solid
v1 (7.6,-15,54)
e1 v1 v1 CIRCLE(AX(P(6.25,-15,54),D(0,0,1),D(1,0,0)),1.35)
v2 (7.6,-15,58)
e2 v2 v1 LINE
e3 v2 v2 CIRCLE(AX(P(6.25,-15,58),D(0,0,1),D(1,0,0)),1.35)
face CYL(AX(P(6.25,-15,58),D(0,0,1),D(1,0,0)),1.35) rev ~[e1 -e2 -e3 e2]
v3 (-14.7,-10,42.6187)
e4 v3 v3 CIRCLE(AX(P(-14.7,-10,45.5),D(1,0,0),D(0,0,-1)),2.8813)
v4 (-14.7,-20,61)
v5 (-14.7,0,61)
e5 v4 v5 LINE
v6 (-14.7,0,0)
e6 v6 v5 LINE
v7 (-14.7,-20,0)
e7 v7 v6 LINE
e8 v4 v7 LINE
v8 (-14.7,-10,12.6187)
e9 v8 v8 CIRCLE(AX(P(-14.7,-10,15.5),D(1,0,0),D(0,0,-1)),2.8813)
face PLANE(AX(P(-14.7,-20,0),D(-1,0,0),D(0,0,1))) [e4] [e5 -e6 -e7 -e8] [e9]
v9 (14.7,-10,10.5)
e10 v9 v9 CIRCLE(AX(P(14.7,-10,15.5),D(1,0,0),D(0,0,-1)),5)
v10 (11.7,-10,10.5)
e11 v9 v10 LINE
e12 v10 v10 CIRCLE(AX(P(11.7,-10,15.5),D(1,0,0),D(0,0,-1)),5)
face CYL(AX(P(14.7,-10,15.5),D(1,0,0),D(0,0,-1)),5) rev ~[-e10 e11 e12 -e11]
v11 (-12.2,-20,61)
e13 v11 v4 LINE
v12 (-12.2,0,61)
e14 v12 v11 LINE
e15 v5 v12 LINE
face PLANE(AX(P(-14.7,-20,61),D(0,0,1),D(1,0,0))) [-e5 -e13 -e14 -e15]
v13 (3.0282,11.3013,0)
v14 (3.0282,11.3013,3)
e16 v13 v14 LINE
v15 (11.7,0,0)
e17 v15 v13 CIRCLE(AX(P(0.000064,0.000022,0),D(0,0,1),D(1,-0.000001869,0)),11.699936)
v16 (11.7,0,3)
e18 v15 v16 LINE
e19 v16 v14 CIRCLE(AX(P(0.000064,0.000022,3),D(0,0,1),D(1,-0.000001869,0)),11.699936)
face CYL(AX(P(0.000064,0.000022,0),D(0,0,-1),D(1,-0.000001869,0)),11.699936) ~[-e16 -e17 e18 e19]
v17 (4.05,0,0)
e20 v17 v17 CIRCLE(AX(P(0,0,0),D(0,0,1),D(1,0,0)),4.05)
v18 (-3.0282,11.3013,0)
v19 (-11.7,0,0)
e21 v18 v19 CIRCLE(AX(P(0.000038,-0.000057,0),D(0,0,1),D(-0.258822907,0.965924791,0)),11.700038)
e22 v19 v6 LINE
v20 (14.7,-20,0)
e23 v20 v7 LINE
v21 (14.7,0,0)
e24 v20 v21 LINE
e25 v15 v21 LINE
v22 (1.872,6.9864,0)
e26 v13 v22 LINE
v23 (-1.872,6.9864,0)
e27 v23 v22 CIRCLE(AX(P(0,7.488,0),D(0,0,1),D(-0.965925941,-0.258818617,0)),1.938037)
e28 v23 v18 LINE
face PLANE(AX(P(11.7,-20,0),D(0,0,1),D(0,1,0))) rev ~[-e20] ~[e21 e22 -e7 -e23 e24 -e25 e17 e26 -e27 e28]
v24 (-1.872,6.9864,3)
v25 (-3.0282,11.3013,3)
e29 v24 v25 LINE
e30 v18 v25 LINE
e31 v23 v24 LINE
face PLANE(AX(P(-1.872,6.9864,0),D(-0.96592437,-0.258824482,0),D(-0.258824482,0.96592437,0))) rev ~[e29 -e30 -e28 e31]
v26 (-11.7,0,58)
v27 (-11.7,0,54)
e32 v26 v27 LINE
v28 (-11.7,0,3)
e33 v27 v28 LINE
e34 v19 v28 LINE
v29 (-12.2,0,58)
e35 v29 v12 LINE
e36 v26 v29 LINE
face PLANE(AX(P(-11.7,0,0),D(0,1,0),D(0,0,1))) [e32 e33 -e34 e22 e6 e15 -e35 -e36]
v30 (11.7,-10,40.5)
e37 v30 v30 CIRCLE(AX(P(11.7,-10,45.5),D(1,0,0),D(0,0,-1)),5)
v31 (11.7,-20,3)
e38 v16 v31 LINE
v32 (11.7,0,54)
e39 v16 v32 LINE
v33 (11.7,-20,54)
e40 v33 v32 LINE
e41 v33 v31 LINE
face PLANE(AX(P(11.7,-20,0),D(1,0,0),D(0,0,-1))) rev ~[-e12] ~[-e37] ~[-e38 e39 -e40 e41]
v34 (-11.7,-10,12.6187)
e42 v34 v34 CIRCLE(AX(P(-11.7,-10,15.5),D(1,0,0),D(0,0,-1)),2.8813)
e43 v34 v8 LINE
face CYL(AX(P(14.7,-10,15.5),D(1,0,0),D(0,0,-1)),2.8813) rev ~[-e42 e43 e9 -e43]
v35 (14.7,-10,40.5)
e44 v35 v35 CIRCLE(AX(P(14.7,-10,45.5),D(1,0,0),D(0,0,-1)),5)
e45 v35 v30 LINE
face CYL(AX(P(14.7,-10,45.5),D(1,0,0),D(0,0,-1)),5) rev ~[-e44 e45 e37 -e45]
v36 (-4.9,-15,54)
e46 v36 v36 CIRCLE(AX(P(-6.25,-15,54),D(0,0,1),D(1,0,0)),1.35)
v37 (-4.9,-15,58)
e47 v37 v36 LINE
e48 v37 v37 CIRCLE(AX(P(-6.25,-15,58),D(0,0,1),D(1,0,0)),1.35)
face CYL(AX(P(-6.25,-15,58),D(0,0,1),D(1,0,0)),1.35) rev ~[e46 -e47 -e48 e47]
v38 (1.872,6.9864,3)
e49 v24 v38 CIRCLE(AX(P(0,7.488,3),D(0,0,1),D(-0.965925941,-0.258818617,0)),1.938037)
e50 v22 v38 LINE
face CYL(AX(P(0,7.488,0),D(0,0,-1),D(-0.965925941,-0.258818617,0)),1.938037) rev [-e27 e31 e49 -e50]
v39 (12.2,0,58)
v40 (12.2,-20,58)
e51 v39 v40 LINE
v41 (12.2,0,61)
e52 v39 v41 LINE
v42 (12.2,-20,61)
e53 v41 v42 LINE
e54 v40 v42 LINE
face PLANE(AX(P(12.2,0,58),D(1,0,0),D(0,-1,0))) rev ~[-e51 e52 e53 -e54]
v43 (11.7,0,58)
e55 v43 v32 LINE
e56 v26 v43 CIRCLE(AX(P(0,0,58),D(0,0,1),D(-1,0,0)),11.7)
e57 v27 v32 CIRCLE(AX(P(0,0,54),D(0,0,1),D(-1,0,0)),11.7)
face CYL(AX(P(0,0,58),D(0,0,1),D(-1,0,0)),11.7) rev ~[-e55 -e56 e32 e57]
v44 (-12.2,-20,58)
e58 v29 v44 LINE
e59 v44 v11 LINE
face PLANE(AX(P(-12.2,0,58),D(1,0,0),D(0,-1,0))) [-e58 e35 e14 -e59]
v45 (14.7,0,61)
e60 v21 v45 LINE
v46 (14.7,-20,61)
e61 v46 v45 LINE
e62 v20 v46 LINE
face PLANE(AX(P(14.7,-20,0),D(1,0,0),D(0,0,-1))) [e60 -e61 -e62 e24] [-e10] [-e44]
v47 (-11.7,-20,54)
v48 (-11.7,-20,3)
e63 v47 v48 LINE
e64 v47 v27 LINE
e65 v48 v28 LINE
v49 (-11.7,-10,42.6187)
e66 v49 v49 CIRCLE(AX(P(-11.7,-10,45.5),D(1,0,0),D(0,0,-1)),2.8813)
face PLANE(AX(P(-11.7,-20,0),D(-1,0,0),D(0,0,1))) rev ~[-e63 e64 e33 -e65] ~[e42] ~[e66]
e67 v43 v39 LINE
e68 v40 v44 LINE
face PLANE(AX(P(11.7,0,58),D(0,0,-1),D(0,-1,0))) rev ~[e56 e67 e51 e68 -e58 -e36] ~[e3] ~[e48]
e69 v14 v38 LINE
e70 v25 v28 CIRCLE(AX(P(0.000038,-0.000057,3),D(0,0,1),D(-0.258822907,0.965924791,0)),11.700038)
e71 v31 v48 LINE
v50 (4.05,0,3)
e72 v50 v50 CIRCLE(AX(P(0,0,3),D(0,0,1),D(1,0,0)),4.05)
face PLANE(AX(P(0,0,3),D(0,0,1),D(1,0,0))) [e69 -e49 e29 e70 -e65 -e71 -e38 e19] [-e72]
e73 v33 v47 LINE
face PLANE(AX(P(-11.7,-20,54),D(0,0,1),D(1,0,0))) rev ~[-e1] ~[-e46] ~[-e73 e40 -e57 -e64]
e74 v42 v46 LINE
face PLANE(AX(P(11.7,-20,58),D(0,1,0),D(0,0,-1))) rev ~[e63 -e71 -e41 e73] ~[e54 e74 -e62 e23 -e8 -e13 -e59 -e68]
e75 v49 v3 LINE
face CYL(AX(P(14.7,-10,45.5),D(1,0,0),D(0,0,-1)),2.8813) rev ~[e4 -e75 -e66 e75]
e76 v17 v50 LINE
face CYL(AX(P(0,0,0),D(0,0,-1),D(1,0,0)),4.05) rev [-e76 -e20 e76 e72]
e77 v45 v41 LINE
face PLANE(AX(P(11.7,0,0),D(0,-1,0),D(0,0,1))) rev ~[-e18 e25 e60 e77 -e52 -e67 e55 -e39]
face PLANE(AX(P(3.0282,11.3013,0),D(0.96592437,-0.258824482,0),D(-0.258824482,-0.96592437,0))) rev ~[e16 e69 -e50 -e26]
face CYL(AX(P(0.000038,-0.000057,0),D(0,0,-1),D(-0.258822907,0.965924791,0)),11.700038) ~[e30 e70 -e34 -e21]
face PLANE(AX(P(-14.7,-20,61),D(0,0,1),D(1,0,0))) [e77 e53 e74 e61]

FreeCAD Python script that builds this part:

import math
import FreeCAD as App
import Part
import Sketcher
Q = App.Units.Quantity

doc = App.newDocument("Part")
body = doc.addObject("PartDesign::Body", "Body")

# Sketch on XY plane
sketch1 = body.newObject("Sketcher::SketchObject", "Sketch")
sketch1.AttachmentSupport = (doc.getObject("XY_Plane"), [""])
sketch1.MapMode = "FlatFace"
sketch1.addGeometry(Part.LineSegment(App.Vector(11.7, -20, 0), App.Vector(11.7, 0, 0)), False)
sketch1.addGeometry(Part.ArcOfCircle(Part.Circle(App.Vector(0, 0, 0), App.Vector(0, 0, 1), 11.7), math.radians(0), math.radians(75)), False)
sketch1.addGeometry(Part.LineSegment(App.Vector(3, 11.3, 0), App.Vector(1.9, 7, 0)), False)
sketch1.addGeometry(Part.ArcOfCircle(Part.Circle(App.Vector(0, 7.5, 0), App.Vector(0, 0, 1), 1.9), math.radians(-165), math.radians(-15)), False)
sketch1.addGeometry(Part.LineSegment(App.Vector(-1.9, 7, 0), App.Vector(-3, 11.3, 0)), False)
sketch1.addGeometry(Part.ArcOfCircle(Part.Circle(App.Vector(0, 0, 0), App.Vector(0, 0, 1), 11.7), math.radians(105), math.radians(180)), False)
sketch1.addGeometry(Part.LineSegment(App.Vector(-11.7, 0, 0), App.Vector(-11.7, -20, 0)), False)
sketch1.addGeometry(Part.LineSegment(App.Vector(-11.7, -20, 0), App.Vector(11.7, -20, 0)), False)
sketch1.addGeometry(Part.Circle(App.Vector(0, 0, 0), App.Vector(0, 0, 1), 4), False)
sketch1.addConstraint(Sketcher.Constraint("Tangent", 0, 2, 1, 1))
sketch1.addConstraint(Sketcher.Constraint("Coincident", 1, 2, 2, 1))
sketch1.addConstraint(Sketcher.Constraint("Tangent", 2, 2, 3, 2))
sketch1.addConstraint(Sketcher.Constraint("Tangent", 3, 1, 4, 1))
sketch1.addConstraint(Sketcher.Constraint("Coincident", 4, 2, 5, 1))
sketch1.addConstraint(Sketcher.Constraint("Tangent", 5, 2, 6, 1))
sketch1.addConstraint(Sketcher.Constraint("Coincident", 6, 2, 7, 1))
sketch1.addConstraint(Sketcher.Constraint("Coincident", 7, 2, 0, 1))
sketch1.addConstraint(Sketcher.Constraint("Vertical", 0))
sketch1.addConstraint(Sketcher.Constraint("Vertical", 6))
sketch1.addConstraint(Sketcher.Constraint("Horizontal", 7))
sketch1.addConstraint(Sketcher.Constraint("Coincident", 1, 3, -1, 1))
sketch1.addConstraint(Sketcher.Constraint("Coincident", 5, 3, -1, 1))
sketch1.addConstraint(Sketcher.Constraint("Coincident", 8, 3, -1, 1))
sketch1.addConstraint(Sketcher.Constraint("Equal", 1, 5))
sketch1.addConstraint(Sketcher.Constraint("Symmetric", 2, 2, 3, 1, -2))
sketch1.addConstraint(Sketcher.Constraint("Diameter", 8, 8.1))
sketch1.addConstraint(Sketcher.Constraint("Radius", 1, 11.7))
sketch1.addConstraint(Sketcher.Constraint("DistanceY", 0, 1, 0, 2, 20.0))
sketch1.addConstraint(Sketcher.Constraint("Angle", 2, Q("-105.0003 deg")))
sketch1.addConstraint(Sketcher.Constraint("Radius", 3, 1.938))
sketch1.addConstraint(Sketcher.Constraint("Distance", 2, 4.467))
pad1 = body.newObject("PartDesign::Pad", "Pad")
pad1.Profile = sketch1
pad1.Length = 3

# Sketch on YZ plane
sketch2 = body.newObject("Sketcher::SketchObject", "Sketch001")
sketch2.AttachmentSupport = (doc.getObject("YZ_Plane"), [""])
sketch2.MapMode = "FlatFace"
sketch2.AttachmentOffset = App.Placement(App.Vector(0, 0, -11.7), App.Rotation())
sketch2.addGeometry(Part.LineSegment(App.Vector(0, 0, 0), App.Vector(-20, 0, 0)), False)
sketch2.addGeometry(Part.LineSegment(App.Vector(-20, 0, 0), App.Vector(-20, 58, 0)), False)
sketch2.addGeometry(Part.LineSegment(App.Vector(-20, 58, 0), App.Vector(0, 58, 0)), False)
sketch2.addGeometry(Part.LineSegment(App.Vector(0, 58, 0), App.Vector(0, 0, 0)), False)
sketch2.addConstraint(Sketcher.Constraint("Coincident", 0, 2, 1, 1))
sketch2.addConstraint(Sketcher.Constraint("Coincident", 1, 2, 2, 1))
sketch2.addConstraint(Sketcher.Constraint("Coincident", 2, 2, 3, 1))
sketch2.addConstraint(Sketcher.Constraint("Coincident", 3, 2, 0, 1))
sketch2.addConstraint(Sketcher.Constraint("Horizontal", 0))
sketch2.addConstraint(Sketcher.Constraint("Vertical", 1))
sketch2.addConstraint(Sketcher.Constraint("Horizontal", 2))
sketch2.addConstraint(Sketcher.Constraint("Vertical", 3))
sketch2.addConstraint(Sketcher.Constraint("Coincident", 3, 2, -1, 1))
sketch2.addConstraint(Sketcher.Constraint("DistanceX", 0, 2, 0, 1, 20.0))
sketch2.addConstraint(Sketcher.Constraint("DistanceY", 1, 1, 1, 2, 58.0))
pad2 = body.newObject("PartDesign::Pad", "Pad001")
pad2.Profile = sketch2
pad2.Length = 3
pad2.Reversed = True

# Sketch on XY plane
sketch3 = body.newObject("Sketcher::SketchObject", "Sketch002")
sketch3.AttachmentSupport = (doc.getObject("XY_Plane"), [""])
sketch3.MapMode = "FlatFace"
sketch3.AttachmentOffset = App.Placement(App.Vector(0, 0, 58), App.Rotation())
sketch3.addGeometry(Part.ArcOfCircle(Part.Circle(App.Vector(0, 0, 0), App.Vector(0, 0, 1), 12), math.radians(180), math.radians(360)), False)
sketch3.addGeometry(Part.LineSegment(App.Vector(-12, 0, 0), App.Vector(-12, -20, 0)), False)
sketch3.addGeometry(Part.LineSegment(App.Vector(-12, -20, 0), App.Vector(12, -20, 0)), False)
sketch3.addGeometry(Part.LineSegment(App.Vector(12, -20, 0), App.Vector(12, 0, 0)), False)
sketch3.addConstraint(Sketcher.Constraint("Tangent", 0, 1, 1, 1))
sketch3.addConstraint(Sketcher.Constraint("Coincident", 1, 2, 2, 1))
sketch3.addConstraint(Sketcher.Constraint("Coincident", 2, 2, 3, 1))
sketch3.addConstraint(Sketcher.Constraint("Tangent", 3, 2, 0, 2))
sketch3.addConstraint(Sketcher.Constraint("Vertical", 1))
sketch3.addConstraint(Sketcher.Constraint("Horizontal", 2))
sketch3.addConstraint(Sketcher.Constraint("Vertical", 3))
sketch3.addConstraint(Sketcher.Constraint("Coincident", 0, 3, -1, 1))
sketch3.addConstraint(Sketcher.Constraint("Radius", 0, 11.7))
sketch3.addConstraint(Sketcher.Constraint("DistanceY", 1, 2, 1, 1, 20.0))
pad3 = body.newObject("PartDesign::Pad", "Pad002")
pad3.Profile = sketch3
pad3.Length = 4
pad3.Reversed = True

# Sketch on XY plane
sketch4 = body.newObject("Sketcher::SketchObject", "Sketch003")
sketch4.AttachmentSupport = (doc.getObject("XY_Plane"), [""])
sketch4.MapMode = "FlatFace"
sketch4.AttachmentOffset = App.Placement(App.Vector(0, 0, 58), App.Rotation())
sketch4.addGeometry(Part.Circle(App.Vector(-6.2, -15, 0), App.Vector(0, 0, 1), 1.4), False)
sketch4.addGeometry(Part.Circle(App.Vector(6.2, -15, 0), App.Vector(0, 0, 1), 1.4), False)
sketch4.addConstraint(Sketcher.Constraint("Equal", 0, 1))
sketch4.addConstraint(Sketcher.Constraint("Symmetric", 0, 3, 1, 3, -2))
sketch4.addConstraint(Sketcher.Constraint("Diameter", 0, 2.7))
sketch4.addConstraint(Sketcher.Constraint("DistanceY", 0, 3, -1, 1, 15.0))
sketch4.addConstraint(Sketcher.Constraint("DistanceX", 0, 3, 1, 3, 12.5))
pocket1 = body.newObject("PartDesign::Pocket", "Pocket")
pocket1.Profile = sketch4
pocket1.Length = 4

# Sketch on YZ plane
sketch5 = body.newObject("Sketcher::SketchObject", "Sketch004")
sketch5.AttachmentSupport = (doc.getObject("YZ_Plane"), [""])
sketch5.MapMode = "FlatFace"
sketch5.AttachmentOffset = App.Placement(App.Vector(0, 0, 11.7), App.Rotation())
sketch5.addGeometry(Part.LineSegment(App.Vector(-20, 0, 0), App.Vector(0, 0, 0)), False)
sketch5.addGeometry(Part.LineSegment(App.Vector(0, 0, 0), App.Vector(0, 58, 0)), False)
sketch5.addGeometry(Part.LineSegment(App.Vector(0, 58, 0), App.Vector(-20, 58, 0)), False)
sketch5.addGeometry(Part.LineSegment(App.Vector(-20, 58, 0), App.Vector(-20, 0, 0)), False)
sketch5.addConstraint(Sketcher.Constraint("Coincident", 0, 2, 1, 1))
sketch5.addConstraint(Sketcher.Constraint("Coincident", 1, 2, 2, 1))
sketch5.addConstraint(Sketcher.Constraint("Coincident", 2, 2, 3, 1))
sketch5.addConstraint(Sketcher.Constraint("Coincident", 3, 2, 0, 1))
sketch5.addConstraint(Sketcher.Constraint("Horizontal", 0))
sketch5.addConstraint(Sketcher.Constraint("Vertical", 1))
sketch5.addConstraint(Sketcher.Constraint("Horizontal", 2))
sketch5.addConstraint(Sketcher.Constraint("Vertical", 3))
sketch5.addConstraint(Sketcher.Constraint("Coincident", 0, 2, -1, 1))
sketch5.addConstraint(Sketcher.Constraint("DistanceX", 0, 1, 0, 2, 20.0))
sketch5.addConstraint(Sketcher.Constraint("DistanceY", 1, 1, 1, 2, 58.0))
pad4 = body.newObject("PartDesign::Pad", "Pad003")
pad4.Profile = sketch5
pad4.Length = 3

# Sketch on XY plane
sketch6 = body.newObject("Sketcher::SketchObject", "Sketch005")
sketch6.AttachmentSupport = (doc.getObject("XY_Plane"), [""])
sketch6.MapMode = "FlatFace"
sketch6.AttachmentOffset = App.Placement(App.Vector(0, 0, 58), App.Rotation())
sketch6.addGeometry(Part.LineSegment(App.Vector(-12.2, 0, 0), App.Vector(-14.7, 0, 0)), False)
sketch6.addGeometry(Part.LineSegment(App.Vector(-14.7, 0, 0), App.Vector(-14.7, -20, 0)), False)
sketch6.addGeometry(Part.LineSegment(App.Vector(-14.7, -20, 0), App.Vector(-12.2, -20, 0)), False)
sketch6.addGeometry(Part.LineSegment(App.Vector(-12.2, -20, 0), App.Vector(-12.2, 0, 0)), False)
sketch6.addGeometry(Part.LineSegment(App.Vector(14.7, -20, 0), App.Vector(14.7, 0, 0)), False)
sketch6.addGeometry(Part.LineSegment(App.Vector(14.7, 0, 0), App.Vector(12.2, 0, 0)), False)
sketch6.addGeometry(Part.LineSegment(App.Vector(12.2, 0, 0), App.Vector(12.2, -20, 0)), False)
sketch6.addGeometry(Part.LineSegment(App.Vector(12.2, -20, 0), App.Vector(14.7, -20, 0)), False)
sketch6.addConstraint(Sketcher.Constraint("Coincident", 0, 2, 1, 1))
sketch6.addConstraint(Sketcher.Constraint("Coincident", 1, 2, 2, 1))
sketch6.addConstraint(Sketcher.Constraint("Coincident", 2, 2, 3, 1))
sketch6.addConstraint(Sketcher.Constraint("Coincident", 3, 2, 0, 1))
sketch6.addConstraint(Sketcher.Constraint("Coincident", 4, 2, 5, 1))
sketch6.addConstraint(Sketcher.Constraint("Coincident", 5, 2, 6, 1))
sketch6.addConstraint(Sketcher.Constraint("Coincident", 6, 2, 7, 1))
sketch6.addConstraint(Sketcher.Constraint("Coincident", 7, 2, 4, 1))
sketch6.addConstraint(Sketcher.Constraint("Horizontal", 0))
sketch6.addConstraint(Sketcher.Constraint("Vertical", 1))
sketch6.addConstraint(Sketcher.Constraint("Horizontal", 2))
sketch6.addConstraint(Sketcher.Constraint("Vertical", 3))
sketch6.addConstraint(Sketcher.Constraint("Vertical", 4))
sketch6.addConstraint(Sketcher.Constraint("Horizontal", 5))
sketch6.addConstraint(Sketcher.Constraint("Vertical", 6))
sketch6.addConstraint(Sketcher.Constraint("Horizontal", 7))
sketch6.addConstraint(Sketcher.Constraint("Symmetric", 0, 2, 4, 2, -1, 1))
sketch6.addConstraint(Sketcher.Constraint("Symmetric", 3, 2, 5, 2, -2))
sketch6.addConstraint(Sketcher.Constraint("Horizontal", 2, 2, 6, 2))
sketch6.addConstraint(Sketcher.Constraint("DistanceX", 0, 2, 0, 1, 2.5))
sketch6.addConstraint(Sketcher.Constraint("DistanceY", 1, 2, 1, 1, 20.0))
sketch6.addConstraint(Sketcher.Constraint("DistanceX", 0, 2, -1, 1, 14.7))
pad5 = body.newObject("PartDesign::Pad", "Pad004")
pad5.Profile = sketch6
pad5.Length = 3

# Sketch on YZ plane
sketch7 = body.newObject("Sketcher::SketchObject", "Sketch006")
sketch7.AttachmentSupport = (doc.getObject("YZ_Plane"), [""])
sketch7.MapMode = "FlatFace"
sketch7.AttachmentOffset = App.Placement(App.Vector(0, 0, 14.7), App.Rotation())
sketch7.addGeometry(Part.Circle(App.Vector(-10, 45.5, 0), App.Vector(0, 0, 1), 2.9), False)
sketch7.addGeometry(Part.Circle(App.Vector(-10, 15.5, 0), App.Vector(0, 0, 1), 2.9), False)
sketch7.addConstraint(Sketcher.Constraint("Equal", 0, 1))
sketch7.addConstraint(Sketcher.Constraint("Vertical", 0, 3, 1, 3))
sketch7.addConstraint(Sketcher.Constraint("DistanceX", 0, 3, -1, 1, 10.0))
sketch7.addConstraint(Sketcher.Constraint("DistanceY", 1, 3, 0, 3, 30.0))
sketch7.addConstraint(Sketcher.Constraint("Diameter", 0, 5.7626))
sketch7.addConstraint(Sketcher.Constraint("DistanceY", -1, 1, 0, 3, 45.5))
pocket2 = body.newObject("PartDesign::Pocket", "Pocket001")
pocket2.Profile = sketch7
pocket2.Type = "ThroughAll"

# Sketch on YZ plane
sketch8 = body.newObject("Sketcher::SketchObject", "Sketch007")
sketch8.AttachmentSupport = (doc.getObject("YZ_Plane"), [""])
sketch8.MapMode = "FlatFace"
sketch8.AttachmentOffset = App.Placement(App.Vector(0, 0, 14.7), App.Rotation())
sketch8.addGeometry(Part.Circle(App.Vector(-10, 16, 0), App.Vector(0, 0, 1), 5), False)
sketch8.addGeometry(Part.Circle(App.Vector(-10, 46, 0), App.Vector(0, 0, 1), 5), False)
sketch8.addConstraint(Sketcher.Constraint("Equal", 0, 1))
sketch8.addConstraint(Sketcher.Constraint("Vertical", 0, 3, 1, 3))
sketch8.addConstraint(Sketcher.Constraint("Diameter", 0, 10.0))
sketch8.addConstraint(Sketcher.Constraint("DistanceX", 0, 3, -1, 1, 10.0))
sketch8.addConstraint(Sketcher.Constraint("DistanceY", 0, 3, 1, 3, 30.0))
sketch8.addConstraint(Sketcher.Constraint("DistanceY", -1, 1, 0, 3, 15.5))
pocket3 = body.newObject("PartDesign::Pocket", "Pocket002")
pocket3.Profile = sketch8
pocket3.Length = 3

doc.recompute()
